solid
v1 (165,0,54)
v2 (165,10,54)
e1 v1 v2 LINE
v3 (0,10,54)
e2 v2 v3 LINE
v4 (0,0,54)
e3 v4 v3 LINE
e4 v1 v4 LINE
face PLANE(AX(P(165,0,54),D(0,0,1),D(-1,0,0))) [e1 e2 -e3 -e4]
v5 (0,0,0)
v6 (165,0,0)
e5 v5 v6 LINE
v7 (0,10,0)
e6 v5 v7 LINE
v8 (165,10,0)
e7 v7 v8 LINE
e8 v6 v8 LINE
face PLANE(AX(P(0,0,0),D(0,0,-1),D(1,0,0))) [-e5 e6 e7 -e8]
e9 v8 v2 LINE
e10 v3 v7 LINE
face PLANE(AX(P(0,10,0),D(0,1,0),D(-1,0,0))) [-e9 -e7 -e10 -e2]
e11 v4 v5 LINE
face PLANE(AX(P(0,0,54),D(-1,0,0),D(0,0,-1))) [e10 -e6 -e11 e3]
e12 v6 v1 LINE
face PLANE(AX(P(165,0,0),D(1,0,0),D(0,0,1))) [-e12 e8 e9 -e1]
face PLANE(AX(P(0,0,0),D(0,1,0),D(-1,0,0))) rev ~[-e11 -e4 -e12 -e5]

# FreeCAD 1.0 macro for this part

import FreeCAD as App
import Part
import Sketcher


def add_polygon(sketch, points):
    """Adds a closed chain of lines whose ends are joined by coincident constraints."""
    first, n = sketch.GeometryCount, len(points)
    for a, b in zip(points, points[1:] + points[:1]):
        sketch.addGeometry(Part.LineSegment(App.Vector(*a, 0), App.Vector(*b, 0)), False)
    for i in range(n):
        sketch.addConstraint(Sketcher.Constraint("Coincident", first + i, 2, first + (i + 1) % n, 1))

doc = App.newDocument("Part")
body = doc.addObject("PartDesign::Body", "Body")

sketch1 = body.newObject("Sketcher::SketchObject", "Sketch")
sketch1.AttachmentSupport = (doc.getObject("XZ_Plane"), [""])
sketch1.MapMode = "FlatFace"
add_polygon(sketch1, [(165, 0), (0, 0), (0, 54), (165, 54)])
sketch1.addConstraint(Sketcher.Constraint("Horizontal", 0))
sketch1.addConstraint(Sketcher.Constraint("Vertical", 1))
sketch1.addConstraint(Sketcher.Constraint("Horizontal", 2))
sketch1.addConstraint(Sketcher.Constraint("Vertical", 3))
sketch1.addConstraint(Sketcher.Constraint("Coincident", 0, 2, -1, 1))
sketch1.addConstraint(Sketcher.Constraint("DistanceX", 0, 2, 0, 1, 165.0))
sketch1.addConstraint(Sketcher.Constraint("DistanceY", 1, 1, 1, 2, 54.0))
pad1 = body.newObject("PartDesign::Pad", "Pad")
pad1.Profile = sketch1
pad1.Length = 10
pad1.Reversed = True

doc.recompute()
